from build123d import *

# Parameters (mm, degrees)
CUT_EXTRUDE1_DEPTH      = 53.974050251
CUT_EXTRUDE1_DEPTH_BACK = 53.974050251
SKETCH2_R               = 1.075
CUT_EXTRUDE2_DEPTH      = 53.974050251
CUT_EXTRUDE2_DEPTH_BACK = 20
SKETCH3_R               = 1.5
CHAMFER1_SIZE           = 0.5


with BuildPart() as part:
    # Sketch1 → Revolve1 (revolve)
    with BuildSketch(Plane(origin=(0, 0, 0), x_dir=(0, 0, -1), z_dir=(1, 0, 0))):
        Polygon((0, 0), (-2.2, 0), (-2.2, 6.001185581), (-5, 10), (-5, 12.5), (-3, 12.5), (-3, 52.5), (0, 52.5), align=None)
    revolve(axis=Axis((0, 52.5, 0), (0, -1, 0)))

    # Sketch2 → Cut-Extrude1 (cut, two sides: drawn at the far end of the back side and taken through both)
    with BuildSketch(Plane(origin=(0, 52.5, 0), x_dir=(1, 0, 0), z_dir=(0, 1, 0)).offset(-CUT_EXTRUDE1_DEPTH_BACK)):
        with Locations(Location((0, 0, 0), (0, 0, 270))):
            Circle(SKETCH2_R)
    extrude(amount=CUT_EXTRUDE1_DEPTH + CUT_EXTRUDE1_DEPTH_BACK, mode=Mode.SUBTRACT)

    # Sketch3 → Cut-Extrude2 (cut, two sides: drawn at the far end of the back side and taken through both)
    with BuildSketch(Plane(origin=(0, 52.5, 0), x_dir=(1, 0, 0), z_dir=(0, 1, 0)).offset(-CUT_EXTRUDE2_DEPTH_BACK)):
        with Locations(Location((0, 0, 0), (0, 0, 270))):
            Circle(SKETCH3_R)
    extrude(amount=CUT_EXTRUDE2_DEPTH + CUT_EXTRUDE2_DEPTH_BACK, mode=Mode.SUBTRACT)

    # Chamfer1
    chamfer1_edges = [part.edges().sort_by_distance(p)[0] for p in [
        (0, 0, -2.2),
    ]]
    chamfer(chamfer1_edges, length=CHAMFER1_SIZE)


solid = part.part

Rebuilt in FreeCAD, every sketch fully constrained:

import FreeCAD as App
import Part
import Sketcher
from FreeCAD import Vector
Q = App.Units.Quantity


def edges_at(feature, points):
    """Names of the edges that pass closest to the given points."""
    edges = feature.Shape.Edges
    near = lambda p: min(range(len(edges)), key=lambda i: edges[i].distToShape(Part.Vertex(*p))[0])
    return sorted({f"Edge{near(p) + 1}" for p in points})


def add_polygon(sketch, points):
    """Adds a closed chain of lines whose ends are joined by coincident constraints."""
    first, n = sketch.GeometryCount, len(points)
    for a, b in zip(points, points[1:] + points[:1]):
        sketch.addGeometry(Part.LineSegment(App.Vector(*a, 0), App.Vector(*b, 0)), False)
    for i in range(n):
        sketch.addConstraint(Sketcher.Constraint("Coincident", first + i, 2, first + (i + 1) % n, 1))

doc = App.newDocument("Part")
body = doc.addObject("PartDesign::Body", "Body")

sketch1 = body.newObject("Sketcher::SketchObject", "Sketch")
sketch1.AttachmentSupport = (doc.getObject("YZ_Plane"), [""])
sketch1.MapMode = "FlatFace"
add_polygon(sketch1, [(0, 2.2), (0, 0), (52.5, 0), (52.5, 3), (12.5, 3), (12.5, 5), (10, 5), (6, 2.2)])
sketch1.addConstraint([
    Sketcher.Constraint("Vertical", 0),
    Sketcher.Constraint("Horizontal", 1),
    Sketcher.Constraint("Vertical", 2),
    Sketcher.Constraint("Horizontal", 3),
    Sketcher.Constraint("Vertical", 4),
    Sketcher.Constraint("Horizontal", 5),
    Sketcher.Constraint("Horizontal", 7),
    Sketcher.Constraint("Coincident", 0, 2, -1, 1),
    Sketcher.Constraint("DistanceX", 3, 2, 3, 1, Q("40 mm")),
    Sketcher.Constraint("DistanceY", 2, 1, 2, 2, Q("3 mm")),
    Sketcher.Constraint("DistanceY", 4, 1, 4, 2, Q("2 mm")),
    Sketcher.Constraint("Angle", 6, Q("-145 deg")),
    Sketcher.Constraint("DistanceX", 1, 1, 1, 2, Q("52.5 mm")),
    Sketcher.Constraint("DistanceX", 5, 2, 5, 1, Q("2.5 mm")),
    Sketcher.Constraint("DistanceY", 0, 2, 0, 1, Q("2.2 mm")),
])
revolution = body.newObject("PartDesign::Revolution", "Revolution")
revolution.Profile = sketch1
revolution.ReferenceAxis = (sketch1, ["H_Axis"])
revolution.Angle = 360

sketch2 = body.newObject("Sketcher::SketchObject", "Sketch001")
sketch2.AttachmentSupport = (doc.getObject("XZ_Plane"), [""])
sketch2.MapMode = "FlatFace"
sketch2.AttachmentOffset = App.Placement(Vector(0, 0, -52.5), App.Rotation())
sketch2.addGeometry(Part.Circle(Vector(0, 0, 0), Vector(0, 0, 1), 1.1), False)
sketch2.addConstraint([
    Sketcher.Constraint("Coincident", 0, 3, -1, 1),
    Sketcher.Constraint("Diameter", 0, Q("2.15 mm")),
])
pocket1 = body.newObject("PartDesign::Pocket", "Pocket")
pocket1.Profile = sketch2
pocket1.Type = "ThroughAll"
pocket1.Midplane = True

sketch3 = body.newObject("Sketcher::SketchObject", "Sketch002")
sketch3.AttachmentSupport = (doc.getObject("XZ_Plane"), [""])
sketch3.MapMode = "FlatFace"
sketch3.AttachmentOffset = App.Placement(Vector(0, 0, -52.5), App.Rotation())
sketch3.addGeometry(Part.Circle(Vector(0, 0, 0), Vector(0, 0, 1), 1.5), False)
sketch3.addConstraint([
    Sketcher.Constraint("Coincident", 0, 3, -1, 1),
    Sketcher.Constraint("Diameter", 0, Q("3 mm")),
])
pocket2 = body.newObject("PartDesign::Pocket", "Pocket001")
pocket2.Profile = sketch3
pocket2.Type = "TwoLengths"
pocket2.Length = 53.97405
pocket2.Length2 = 20
doc.recompute()

chamfer = body.newObject("PartDesign::Chamfer", "Chamfer")
chamfer.Base = (pocket2, edges_at(pocket2, [(0, 0, -2.2)]))
chamfer.Size = 0.5

doc.recompute()
